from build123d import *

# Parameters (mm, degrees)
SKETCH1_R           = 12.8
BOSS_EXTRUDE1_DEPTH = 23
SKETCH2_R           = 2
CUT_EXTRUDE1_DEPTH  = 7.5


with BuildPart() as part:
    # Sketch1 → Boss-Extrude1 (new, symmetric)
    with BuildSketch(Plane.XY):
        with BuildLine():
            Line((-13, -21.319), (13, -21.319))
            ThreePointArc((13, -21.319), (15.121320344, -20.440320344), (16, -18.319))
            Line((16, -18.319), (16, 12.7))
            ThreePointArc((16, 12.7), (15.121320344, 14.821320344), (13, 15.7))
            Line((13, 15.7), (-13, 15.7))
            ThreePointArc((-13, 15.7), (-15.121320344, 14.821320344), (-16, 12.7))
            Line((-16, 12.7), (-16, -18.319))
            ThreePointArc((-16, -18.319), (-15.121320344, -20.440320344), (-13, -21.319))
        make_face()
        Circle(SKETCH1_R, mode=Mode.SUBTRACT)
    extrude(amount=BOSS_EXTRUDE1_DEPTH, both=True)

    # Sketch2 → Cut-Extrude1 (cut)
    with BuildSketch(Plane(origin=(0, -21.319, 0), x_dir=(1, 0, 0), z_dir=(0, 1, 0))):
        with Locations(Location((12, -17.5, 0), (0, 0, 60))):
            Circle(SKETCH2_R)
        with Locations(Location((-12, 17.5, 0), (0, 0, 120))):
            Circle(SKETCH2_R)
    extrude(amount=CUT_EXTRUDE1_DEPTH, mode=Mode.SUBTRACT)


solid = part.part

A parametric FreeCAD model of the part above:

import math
import FreeCAD as App
import Part
import Sketcher

V = App.Vector

doc = App.newDocument("Part")
params = doc.addObject("Spreadsheet::Sheet", "Params")
for row, (alias, value) in enumerate([
    ("sketch1_radius", "3 mm"),
    ("sketch1_diameter", "25.6 mm"),
    ("sketch1_width", "26 mm"),
    ("pad1_length", "46 mm"),
    ("sketch2_diameter", "4 mm"),
    ("pocket1_length", "7.5 mm"),
], start=1):
    params.set(f"A{row}", alias)
    params.set(f"B{row}", "=" + value)
    params.setAlias(f"B{row}", alias)

body = doc.addObject("PartDesign::Body", "Body")

# Sketch on XY plane
sketch1 = body.newObject("Sketcher::SketchObject", "Sketch")
sketch1.AttachmentSupport = (doc.getObject("XY_Plane"), [""])
sketch1.MapMode = "FlatFace"
sketch1.addGeometry([
    Part.LineSegment(V(-13, -21.3, 0), V(13, -21.3, 0)),  # 0
    Part.ArcOfCircle(Part.Circle(V(13, -18.3, 0), V(0, 0, 1), 3), math.radians(-90), math.radians(0)),  # 1
    Part.LineSegment(V(16, -18.3, 0), V(16, 12.7, 0)),  # 2
    Part.ArcOfCircle(Part.Circle(V(13, 12.7, 0), V(0, 0, 1), 3), math.radians(0), math.radians(90)),  # 3
    Part.LineSegment(V(13, 15.7, 0), V(-13, 15.7, 0)),  # 4
    Part.ArcOfCircle(Part.Circle(V(-13, 12.7, 0), V(0, 0, 1), 3), math.radians(90), math.radians(180)),  # 5
    Part.LineSegment(V(-16, 12.7, 0), V(-16, -18.3, 0)),  # 6
    Part.ArcOfCircle(Part.Circle(V(-13, -18.3, 0), V(0, 0, 1), 3), math.radians(180), math.radians(270)),  # 7
    Part.Circle(V(0, 0, 0), V(0, 0, 1), 12.8),  # 8
], False)
sketch1.addConstraint([
    Sketcher.Constraint("Tangent", 0, 2, 1, 1),
    Sketcher.Constraint("Tangent", 1, 2, 2, 1),
    Sketcher.Constraint("Tangent", 2, 2, 3, 1),
    Sketcher.Constraint("Tangent", 3, 2, 4, 1),
    Sketcher.Constraint("Tangent", 4, 2, 5, 1),
    Sketcher.Constraint("Tangent", 5, 2, 6, 1),
    Sketcher.Constraint("Tangent", 6, 2, 7, 1),
    Sketcher.Constraint("Tangent", 7, 2, 0, 1),
    Sketcher.Constraint("Horizontal", 0),
    Sketcher.Constraint("Vertical", 2),
    Sketcher.Constraint("Horizontal", 4),
    Sketcher.Constraint("Vertical", 6),
    Sketcher.Constraint("Coincident", 8, 3, -1, 1),
    Sketcher.Constraint("Equal", 1, 3),
    Sketcher.Constraint("Equal", 3, 5),
    Sketcher.Constraint("Equal", 5, 7),
    Sketcher.Constraint("Radius", 1, 3.0),
    Sketcher.Constraint("Diameter", 8, 25.6),
    Sketcher.Constraint("DistanceX", 0, 1, 0, 2, 26.0),
    Sketcher.Constraint("DistanceX", -1, 1, 1, 3, 13.0),
    Sketcher.Constraint("DistanceY", -1, 1, 3, 3, 12.7),
    Sketcher.Constraint("DistanceY", 2, 1, 2, 2, 31.019),
])
sketch1.setExpression("Constraints[16]", "Params.sketch1_radius")
sketch1.setExpression("Constraints[17]", "Params.sketch1_diameter")
sketch1.setExpression("Constraints[18]", "Params.sketch1_width")
pad1 = body.newObject("PartDesign::Pad", "Pad")
pad1.Profile = sketch1
pad1.setExpression("Length", "Params.pad1_length")
pad1.Midplane = True

# Sketch on XZ plane
sketch2 = body.newObject("Sketcher::SketchObject", "Sketch001")
sketch2.AttachmentSupport = (doc.getObject("XZ_Plane"), [""])
sketch2.MapMode = "FlatFace"
sketch2.AttachmentOffset = App.Placement(V(0, 0, 21.319), App.Rotation())
sketch2.addGeometry([
    Part.Circle(V(12, 17.5, 0), V(0, 0, 1), 2),
    Part.Circle(V(-12, -17.5, 0), V(0, 0, 1), 2),
], False)
sketch2.addConstraint([
    Sketcher.Constraint("Equal", 0, 1),
    Sketcher.Constraint("Symmetric", 0, 3, 1, 3, -1, 1),
    Sketcher.Constraint("Diameter", 0, 4.0),
    Sketcher.Constraint("DistanceX", -1, 1, 0, 3, 12.0),
    Sketcher.Constraint("DistanceY", 1, 3, 0, 3, 35.0),
])
sketch2.setExpression("Constraints[2]", "Params.sketch2_diameter")
pocket1 = body.newObject("PartDesign::Pocket", "Pocket")
pocket1.Profile = sketch2
pocket1.setExpression("Length", "Params.pocket1_length")

doc.recompute()
